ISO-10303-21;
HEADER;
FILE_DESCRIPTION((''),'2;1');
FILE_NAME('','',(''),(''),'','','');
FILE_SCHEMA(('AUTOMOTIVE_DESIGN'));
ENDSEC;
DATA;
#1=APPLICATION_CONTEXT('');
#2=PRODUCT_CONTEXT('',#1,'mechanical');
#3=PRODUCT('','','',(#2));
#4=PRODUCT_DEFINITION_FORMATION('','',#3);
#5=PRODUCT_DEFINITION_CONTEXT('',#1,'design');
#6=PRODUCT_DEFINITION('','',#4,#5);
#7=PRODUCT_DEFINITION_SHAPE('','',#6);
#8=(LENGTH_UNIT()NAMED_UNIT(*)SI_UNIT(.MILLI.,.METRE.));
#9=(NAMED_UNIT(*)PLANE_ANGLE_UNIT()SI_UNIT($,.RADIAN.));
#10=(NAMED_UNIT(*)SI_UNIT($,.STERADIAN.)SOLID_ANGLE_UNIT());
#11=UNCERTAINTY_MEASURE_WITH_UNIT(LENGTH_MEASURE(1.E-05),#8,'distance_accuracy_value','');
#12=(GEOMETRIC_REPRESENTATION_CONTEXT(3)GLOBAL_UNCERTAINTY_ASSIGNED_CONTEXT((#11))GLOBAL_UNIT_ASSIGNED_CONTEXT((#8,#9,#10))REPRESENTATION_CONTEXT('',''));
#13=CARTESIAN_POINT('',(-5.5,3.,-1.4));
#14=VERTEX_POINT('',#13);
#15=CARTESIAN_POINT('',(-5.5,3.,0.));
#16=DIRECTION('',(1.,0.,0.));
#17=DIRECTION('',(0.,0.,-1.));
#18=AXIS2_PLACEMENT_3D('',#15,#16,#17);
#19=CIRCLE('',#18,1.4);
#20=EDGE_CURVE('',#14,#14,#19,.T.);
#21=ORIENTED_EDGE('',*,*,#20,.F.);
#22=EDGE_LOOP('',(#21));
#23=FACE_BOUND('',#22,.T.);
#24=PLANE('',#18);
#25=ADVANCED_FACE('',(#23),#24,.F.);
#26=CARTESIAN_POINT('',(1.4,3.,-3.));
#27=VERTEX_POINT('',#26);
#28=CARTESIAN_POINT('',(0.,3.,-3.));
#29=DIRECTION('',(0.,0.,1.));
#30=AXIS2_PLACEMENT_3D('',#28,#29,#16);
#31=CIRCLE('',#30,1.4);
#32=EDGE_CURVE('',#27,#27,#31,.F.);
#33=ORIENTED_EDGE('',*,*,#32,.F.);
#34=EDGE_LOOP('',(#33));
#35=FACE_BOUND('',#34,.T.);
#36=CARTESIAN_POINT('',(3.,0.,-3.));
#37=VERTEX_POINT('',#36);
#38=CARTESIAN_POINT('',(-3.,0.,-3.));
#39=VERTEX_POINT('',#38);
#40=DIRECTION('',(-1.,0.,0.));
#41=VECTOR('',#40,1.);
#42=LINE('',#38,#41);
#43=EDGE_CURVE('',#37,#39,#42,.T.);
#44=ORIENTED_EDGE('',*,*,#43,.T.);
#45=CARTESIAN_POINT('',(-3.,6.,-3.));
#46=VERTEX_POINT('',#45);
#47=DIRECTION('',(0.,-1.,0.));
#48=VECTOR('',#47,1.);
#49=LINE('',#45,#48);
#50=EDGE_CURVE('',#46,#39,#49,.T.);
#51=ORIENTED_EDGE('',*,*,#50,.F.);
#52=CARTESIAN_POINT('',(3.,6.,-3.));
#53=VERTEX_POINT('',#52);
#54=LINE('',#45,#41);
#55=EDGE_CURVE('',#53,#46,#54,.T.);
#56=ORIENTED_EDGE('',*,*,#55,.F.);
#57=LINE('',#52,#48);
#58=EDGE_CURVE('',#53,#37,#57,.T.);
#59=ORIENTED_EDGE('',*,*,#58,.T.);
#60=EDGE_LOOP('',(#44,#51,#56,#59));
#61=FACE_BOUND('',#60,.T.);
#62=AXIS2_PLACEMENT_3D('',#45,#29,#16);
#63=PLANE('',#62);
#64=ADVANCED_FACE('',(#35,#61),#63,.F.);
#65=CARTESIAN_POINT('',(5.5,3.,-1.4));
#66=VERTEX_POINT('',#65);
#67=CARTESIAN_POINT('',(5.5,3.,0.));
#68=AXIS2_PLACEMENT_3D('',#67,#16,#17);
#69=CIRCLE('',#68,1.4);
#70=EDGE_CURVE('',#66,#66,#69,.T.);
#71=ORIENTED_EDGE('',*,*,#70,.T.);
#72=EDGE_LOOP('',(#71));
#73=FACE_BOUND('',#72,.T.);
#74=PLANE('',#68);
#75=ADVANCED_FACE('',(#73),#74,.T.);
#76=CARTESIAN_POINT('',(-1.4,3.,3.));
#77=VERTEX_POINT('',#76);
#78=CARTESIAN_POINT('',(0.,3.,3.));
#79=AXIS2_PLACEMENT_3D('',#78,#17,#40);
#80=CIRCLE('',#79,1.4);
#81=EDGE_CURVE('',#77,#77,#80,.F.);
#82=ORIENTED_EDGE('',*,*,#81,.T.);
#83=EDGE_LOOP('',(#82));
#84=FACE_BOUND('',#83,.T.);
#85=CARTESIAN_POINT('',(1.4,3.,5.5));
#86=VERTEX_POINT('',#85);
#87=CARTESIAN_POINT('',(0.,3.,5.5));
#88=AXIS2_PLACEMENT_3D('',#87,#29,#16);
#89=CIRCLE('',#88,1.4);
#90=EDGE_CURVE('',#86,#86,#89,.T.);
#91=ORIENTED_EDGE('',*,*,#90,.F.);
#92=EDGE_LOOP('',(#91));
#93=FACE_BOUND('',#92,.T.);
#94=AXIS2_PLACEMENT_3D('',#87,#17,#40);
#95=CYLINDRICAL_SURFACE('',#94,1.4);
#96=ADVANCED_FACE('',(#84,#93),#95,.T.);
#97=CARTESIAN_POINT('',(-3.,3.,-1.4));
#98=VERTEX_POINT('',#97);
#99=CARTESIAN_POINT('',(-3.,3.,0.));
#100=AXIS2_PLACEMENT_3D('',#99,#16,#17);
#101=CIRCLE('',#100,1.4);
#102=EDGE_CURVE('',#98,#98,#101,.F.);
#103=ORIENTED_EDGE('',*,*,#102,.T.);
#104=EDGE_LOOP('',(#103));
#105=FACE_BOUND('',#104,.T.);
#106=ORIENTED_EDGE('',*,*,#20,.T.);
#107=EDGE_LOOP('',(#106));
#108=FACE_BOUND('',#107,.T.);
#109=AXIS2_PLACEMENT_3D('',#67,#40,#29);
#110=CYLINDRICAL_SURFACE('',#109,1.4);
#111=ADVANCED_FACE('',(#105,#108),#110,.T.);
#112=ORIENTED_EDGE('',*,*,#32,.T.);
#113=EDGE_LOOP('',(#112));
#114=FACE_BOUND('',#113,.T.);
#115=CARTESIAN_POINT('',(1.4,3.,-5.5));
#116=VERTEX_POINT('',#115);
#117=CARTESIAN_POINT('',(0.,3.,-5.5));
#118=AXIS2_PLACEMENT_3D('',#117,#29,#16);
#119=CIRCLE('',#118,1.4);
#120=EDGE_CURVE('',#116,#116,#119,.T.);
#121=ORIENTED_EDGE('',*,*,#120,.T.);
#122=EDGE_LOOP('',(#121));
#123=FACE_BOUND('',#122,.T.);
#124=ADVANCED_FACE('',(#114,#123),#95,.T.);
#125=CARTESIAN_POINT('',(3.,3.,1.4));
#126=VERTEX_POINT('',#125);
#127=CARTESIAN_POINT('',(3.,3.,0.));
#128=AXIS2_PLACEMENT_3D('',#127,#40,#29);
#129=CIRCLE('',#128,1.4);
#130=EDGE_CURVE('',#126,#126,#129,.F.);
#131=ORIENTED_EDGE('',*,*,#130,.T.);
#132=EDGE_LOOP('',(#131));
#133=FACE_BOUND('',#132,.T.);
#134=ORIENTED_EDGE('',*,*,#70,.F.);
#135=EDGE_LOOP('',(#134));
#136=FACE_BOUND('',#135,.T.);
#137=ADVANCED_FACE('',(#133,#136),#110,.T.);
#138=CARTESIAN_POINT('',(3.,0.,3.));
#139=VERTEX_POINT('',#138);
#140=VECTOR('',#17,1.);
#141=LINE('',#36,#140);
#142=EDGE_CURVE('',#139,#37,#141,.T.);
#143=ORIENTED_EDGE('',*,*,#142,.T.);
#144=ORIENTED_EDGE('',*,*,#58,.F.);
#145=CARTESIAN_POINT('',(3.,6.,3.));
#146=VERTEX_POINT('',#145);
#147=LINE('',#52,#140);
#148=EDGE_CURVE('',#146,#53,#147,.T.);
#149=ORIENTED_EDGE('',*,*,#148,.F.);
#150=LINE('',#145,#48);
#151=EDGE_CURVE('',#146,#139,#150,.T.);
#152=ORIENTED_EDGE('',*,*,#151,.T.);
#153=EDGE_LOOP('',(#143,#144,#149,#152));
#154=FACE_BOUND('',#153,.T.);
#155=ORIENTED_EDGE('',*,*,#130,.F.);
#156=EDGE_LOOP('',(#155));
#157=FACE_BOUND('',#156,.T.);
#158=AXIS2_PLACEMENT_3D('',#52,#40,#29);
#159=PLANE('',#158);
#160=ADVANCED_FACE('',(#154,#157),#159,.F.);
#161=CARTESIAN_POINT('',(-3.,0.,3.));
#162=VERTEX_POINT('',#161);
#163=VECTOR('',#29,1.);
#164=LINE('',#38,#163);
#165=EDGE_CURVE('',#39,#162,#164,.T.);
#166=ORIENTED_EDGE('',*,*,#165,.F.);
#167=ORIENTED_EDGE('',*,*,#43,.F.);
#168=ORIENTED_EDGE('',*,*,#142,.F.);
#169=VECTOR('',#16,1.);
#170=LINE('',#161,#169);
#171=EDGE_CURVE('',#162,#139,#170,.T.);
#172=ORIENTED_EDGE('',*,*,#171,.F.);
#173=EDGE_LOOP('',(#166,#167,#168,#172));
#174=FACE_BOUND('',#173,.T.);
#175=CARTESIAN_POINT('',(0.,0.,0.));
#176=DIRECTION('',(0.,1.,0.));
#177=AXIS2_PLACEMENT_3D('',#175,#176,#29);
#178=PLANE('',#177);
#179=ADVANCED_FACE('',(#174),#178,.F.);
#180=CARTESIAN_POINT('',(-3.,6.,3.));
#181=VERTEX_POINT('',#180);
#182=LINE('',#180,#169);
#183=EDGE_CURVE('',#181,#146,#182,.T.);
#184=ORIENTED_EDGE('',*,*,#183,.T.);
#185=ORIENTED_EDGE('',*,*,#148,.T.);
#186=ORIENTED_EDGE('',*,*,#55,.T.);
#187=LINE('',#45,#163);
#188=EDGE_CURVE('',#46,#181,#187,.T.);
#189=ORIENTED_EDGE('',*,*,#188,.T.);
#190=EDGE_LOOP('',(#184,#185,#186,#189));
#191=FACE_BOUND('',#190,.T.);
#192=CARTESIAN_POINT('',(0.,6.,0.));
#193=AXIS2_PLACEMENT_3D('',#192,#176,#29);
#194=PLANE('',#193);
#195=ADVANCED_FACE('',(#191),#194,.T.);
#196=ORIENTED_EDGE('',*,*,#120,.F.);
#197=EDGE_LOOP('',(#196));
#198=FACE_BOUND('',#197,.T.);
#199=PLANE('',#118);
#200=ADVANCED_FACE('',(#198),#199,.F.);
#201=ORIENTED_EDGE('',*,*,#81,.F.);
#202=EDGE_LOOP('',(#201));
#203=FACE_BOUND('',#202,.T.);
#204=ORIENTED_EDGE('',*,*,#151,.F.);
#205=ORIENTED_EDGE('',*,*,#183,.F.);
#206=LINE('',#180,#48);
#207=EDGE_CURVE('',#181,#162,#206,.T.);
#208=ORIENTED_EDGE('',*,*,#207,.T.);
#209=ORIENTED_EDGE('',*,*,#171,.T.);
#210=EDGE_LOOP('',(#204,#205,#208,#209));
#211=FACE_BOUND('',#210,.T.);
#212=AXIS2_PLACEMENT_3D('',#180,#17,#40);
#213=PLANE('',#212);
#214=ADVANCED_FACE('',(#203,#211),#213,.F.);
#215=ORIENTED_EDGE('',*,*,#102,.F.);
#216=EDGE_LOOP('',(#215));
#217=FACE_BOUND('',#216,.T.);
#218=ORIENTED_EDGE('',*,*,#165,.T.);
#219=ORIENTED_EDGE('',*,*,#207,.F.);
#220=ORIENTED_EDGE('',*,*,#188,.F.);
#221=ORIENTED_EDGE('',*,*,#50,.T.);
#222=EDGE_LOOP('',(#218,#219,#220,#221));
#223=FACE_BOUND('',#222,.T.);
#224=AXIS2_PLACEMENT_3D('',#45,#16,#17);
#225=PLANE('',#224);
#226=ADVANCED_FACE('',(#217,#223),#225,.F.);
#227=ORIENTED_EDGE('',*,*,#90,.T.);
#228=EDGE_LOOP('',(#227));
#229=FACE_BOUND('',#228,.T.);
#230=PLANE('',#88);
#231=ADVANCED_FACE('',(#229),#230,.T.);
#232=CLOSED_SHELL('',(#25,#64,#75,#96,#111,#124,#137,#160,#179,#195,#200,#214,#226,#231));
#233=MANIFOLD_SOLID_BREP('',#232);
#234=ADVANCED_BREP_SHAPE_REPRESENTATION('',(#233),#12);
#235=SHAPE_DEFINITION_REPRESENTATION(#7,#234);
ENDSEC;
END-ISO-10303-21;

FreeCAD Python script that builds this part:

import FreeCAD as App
import Part
import Sketcher
from FreeCAD import Vector

doc = App.newDocument("Part")
params = doc.addObject("Spreadsheet::Sheet", "Params")
for row, (alias, value) in enumerate([
    ("sketch1_width", "6 mm"),
    ("pad1_length", "6 mm"),
    ("sketch2_diameter", "2.8 mm"),
    ("pad2_length", "11 mm"),
    ("sketch3_diameter", "2.8 mm"),
    ("pad3_length", "11 mm"),
], start=1):
    params.set(f"A{row}", alias)
    params.set(f"B{row}", "=" + value)
    params.setAlias(f"B{row}", alias)

body = doc.addObject("PartDesign::Body", "Body")

# Sketch on XZ plane
sketch1 = doc.addObject("Sketcher::SketchObject", "Sketch")
body.addObject(sketch1)
sketch1.AttachmentSupport = (doc.XZ_Plane, [""])
sketch1.MapMode = "FlatFace"
sketch1.addGeometry(Part.LineSegment(Vector(-3, -3, 0), Vector(-3, 3, 0)), False)
sketch1.addGeometry(Part.LineSegment(Vector(-3, 3, 0), Vector(3, 3, 0)), False)
sketch1.addGeometry(Part.LineSegment(Vector(3, 3, 0), Vector(3, -3, 0)), False)
sketch1.addGeometry(Part.LineSegment(Vector(3, -3, 0), Vector(-3, -3, 0)), False)
sketch1.addConstraint(Sketcher.Constraint("Coincident", 0, 2, 1, 1))
sketch1.addConstraint(Sketcher.Constraint("Coincident", 1, 2, 2, 1))
sketch1.addConstraint(Sketcher.Constraint("Coincident", 2, 2, 3, 1))
sketch1.addConstraint(Sketcher.Constraint("Coincident", 3, 2, 0, 1))
sketch1.addConstraint(Sketcher.Constraint("Vertical", 0))
sketch1.addConstraint(Sketcher.Constraint("Horizontal", 1))
sketch1.addConstraint(Sketcher.Constraint("Vertical", 2))
sketch1.addConstraint(Sketcher.Constraint("Horizontal", 3))
sketch1.addConstraint(Sketcher.Constraint("Symmetric", 0, 2, 2, 2, -1, 1))
sketch1.addConstraint(Sketcher.Constraint("Equal", 3, 0))
sketch1.addConstraint(Sketcher.Constraint("DistanceX", 1, 1, 1, 2, 6.0))
sketch1.setExpression("Constraints[10]", "Params.sketch1_width")
pad1 = doc.addObject("PartDesign::Pad", "Pad")
body.addObject(pad1)
pad1.Profile = sketch1
pad1.setExpression("Length", "Params.pad1_length")
pad1.Reversed = True

# Sketch on XY plane
sketch2 = doc.addObject("Sketcher::SketchObject", "Sketch001")
body.addObject(sketch2)
sketch2.AttachmentSupport = (doc.XY_Plane, [""])
sketch2.MapMode = "FlatFace"
sketch2.addGeometry(Part.Circle(Vector(0, 3, 0), Vector(0, 0, 1), 1.4), False)
sketch2.addConstraint(Sketcher.Constraint("PointOnObject", 0, 3, -2))
sketch2.addConstraint(Sketcher.Constraint("Diameter", 0, 2.8))
sketch2.addConstraint(Sketcher.Constraint("DistanceY", -1, 1, 0, 3, 3.0))
sketch2.setExpression("Constraints[1]", "Params.sketch2_diameter")
pad2 = doc.addObject("PartDesign::Pad", "Pad001")
body.addObject(pad2)
pad2.Profile = sketch2
pad2.setExpression("Length", "Params.pad2_length")
pad2.Midplane = True

# Sketch on YZ plane
sketch3 = doc.addObject("Sketcher::SketchObject", "Sketch002")
body.addObject(sketch3)
sketch3.AttachmentSupport = (doc.YZ_Plane, [""])
sketch3.MapMode = "FlatFace"
sketch3.addGeometry(Part.Circle(Vector(3, 0, 0), Vector(0, 0, 1), 1.4), False)
sketch3.addConstraint(Sketcher.Constraint("PointOnObject", 0, 3, -1))
sketch3.addConstraint(Sketcher.Constraint("Diameter", 0, 2.8))
sketch3.addConstraint(Sketcher.Constraint("DistanceX", -1, 1, 0, 3, 3.0))
sketch3.setExpression("Constraints[1]", "Params.sketch3_diameter")
pad3 = doc.addObject("PartDesign::Pad", "Pad002")
body.addObject(pad3)
pad3.Profile = sketch3
pad3.setExpression("Length", "Params.pad3_length")
pad3.Midplane = True

doc.recompute()
